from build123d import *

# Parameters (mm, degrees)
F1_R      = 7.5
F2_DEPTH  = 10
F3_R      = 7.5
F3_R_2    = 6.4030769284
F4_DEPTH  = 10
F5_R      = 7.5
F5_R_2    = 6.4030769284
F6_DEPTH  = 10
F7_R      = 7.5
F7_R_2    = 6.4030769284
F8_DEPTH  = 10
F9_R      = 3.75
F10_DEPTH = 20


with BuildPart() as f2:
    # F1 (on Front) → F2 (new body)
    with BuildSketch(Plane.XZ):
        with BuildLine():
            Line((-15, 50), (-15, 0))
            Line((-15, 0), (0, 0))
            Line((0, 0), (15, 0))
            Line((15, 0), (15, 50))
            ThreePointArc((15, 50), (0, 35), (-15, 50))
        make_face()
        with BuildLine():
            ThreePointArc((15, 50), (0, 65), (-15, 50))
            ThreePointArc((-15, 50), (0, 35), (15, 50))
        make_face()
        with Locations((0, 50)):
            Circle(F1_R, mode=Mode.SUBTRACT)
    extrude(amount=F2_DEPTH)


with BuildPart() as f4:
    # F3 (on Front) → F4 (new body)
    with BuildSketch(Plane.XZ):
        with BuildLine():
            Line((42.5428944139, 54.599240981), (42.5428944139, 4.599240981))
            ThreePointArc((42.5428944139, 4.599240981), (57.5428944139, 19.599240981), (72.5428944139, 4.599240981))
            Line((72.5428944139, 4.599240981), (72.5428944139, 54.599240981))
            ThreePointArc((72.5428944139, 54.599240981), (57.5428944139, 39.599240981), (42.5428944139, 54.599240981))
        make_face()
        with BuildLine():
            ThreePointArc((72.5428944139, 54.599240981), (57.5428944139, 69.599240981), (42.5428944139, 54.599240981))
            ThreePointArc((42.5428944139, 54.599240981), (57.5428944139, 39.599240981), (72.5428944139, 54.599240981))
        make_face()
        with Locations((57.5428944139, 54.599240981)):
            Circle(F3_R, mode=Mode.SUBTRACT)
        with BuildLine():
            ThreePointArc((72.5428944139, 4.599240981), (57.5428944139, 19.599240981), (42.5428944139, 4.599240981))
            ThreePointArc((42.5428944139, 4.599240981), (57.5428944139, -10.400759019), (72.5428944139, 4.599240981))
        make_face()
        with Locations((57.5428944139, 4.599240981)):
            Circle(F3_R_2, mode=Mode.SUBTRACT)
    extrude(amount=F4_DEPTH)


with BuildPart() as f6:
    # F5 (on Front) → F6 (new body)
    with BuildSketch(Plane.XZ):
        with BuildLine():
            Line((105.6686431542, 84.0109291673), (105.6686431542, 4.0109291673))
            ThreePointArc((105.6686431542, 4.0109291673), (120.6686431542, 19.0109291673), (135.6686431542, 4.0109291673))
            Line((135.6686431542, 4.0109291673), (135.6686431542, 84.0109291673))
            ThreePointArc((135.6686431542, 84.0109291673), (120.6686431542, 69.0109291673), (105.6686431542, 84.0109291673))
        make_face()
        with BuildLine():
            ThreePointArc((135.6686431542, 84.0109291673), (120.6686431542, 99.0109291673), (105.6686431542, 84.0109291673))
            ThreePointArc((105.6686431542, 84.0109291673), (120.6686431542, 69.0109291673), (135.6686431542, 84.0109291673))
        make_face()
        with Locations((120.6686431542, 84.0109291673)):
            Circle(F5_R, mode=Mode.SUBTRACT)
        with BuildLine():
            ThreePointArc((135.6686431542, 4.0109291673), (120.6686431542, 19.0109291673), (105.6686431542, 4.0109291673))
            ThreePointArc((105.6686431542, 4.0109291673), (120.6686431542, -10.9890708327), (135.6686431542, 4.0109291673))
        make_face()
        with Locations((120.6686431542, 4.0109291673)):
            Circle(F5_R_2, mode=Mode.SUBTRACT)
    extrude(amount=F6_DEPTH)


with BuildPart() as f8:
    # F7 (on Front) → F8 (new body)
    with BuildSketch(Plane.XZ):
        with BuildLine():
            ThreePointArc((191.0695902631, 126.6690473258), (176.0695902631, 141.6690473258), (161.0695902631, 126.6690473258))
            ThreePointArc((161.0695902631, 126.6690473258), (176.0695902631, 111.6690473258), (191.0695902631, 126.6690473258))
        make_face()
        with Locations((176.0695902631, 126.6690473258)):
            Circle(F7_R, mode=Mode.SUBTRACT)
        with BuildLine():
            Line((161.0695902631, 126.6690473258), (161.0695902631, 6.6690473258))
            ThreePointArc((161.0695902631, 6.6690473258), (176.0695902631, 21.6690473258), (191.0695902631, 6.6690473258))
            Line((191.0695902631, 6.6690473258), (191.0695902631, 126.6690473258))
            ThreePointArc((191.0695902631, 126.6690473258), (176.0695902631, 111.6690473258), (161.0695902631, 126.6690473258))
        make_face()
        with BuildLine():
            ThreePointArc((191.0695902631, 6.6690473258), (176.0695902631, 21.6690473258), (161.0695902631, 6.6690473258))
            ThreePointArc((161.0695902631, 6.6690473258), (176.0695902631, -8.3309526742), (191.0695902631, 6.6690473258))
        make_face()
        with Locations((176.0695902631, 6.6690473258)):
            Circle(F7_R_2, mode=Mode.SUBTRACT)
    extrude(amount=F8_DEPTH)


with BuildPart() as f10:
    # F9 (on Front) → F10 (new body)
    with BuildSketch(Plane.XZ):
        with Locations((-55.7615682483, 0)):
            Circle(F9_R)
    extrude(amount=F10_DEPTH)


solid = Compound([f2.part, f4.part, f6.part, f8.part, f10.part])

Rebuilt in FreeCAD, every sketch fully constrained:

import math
import FreeCAD as App
import Part
import Sketcher
from FreeCAD import Vector

doc = App.newDocument("Part")
body = doc.addObject("PartDesign::Body", "Body")

sketch1 = body.newObject("Sketcher::SketchObject", "Sketch")
sketch1.AttachmentSupport = (doc.getObject("XZ_Plane"), [""])
sketch1.MapMode = "FlatFace"
sketch1.addGeometry(Part.LineSegment(Vector(-15, 50, 0), Vector(-15, 0, 0)), False)
sketch1.addGeometry(Part.LineSegment(Vector(-15, 0, 0), Vector(15, 0, 0)), False)
sketch1.addGeometry(Part.LineSegment(Vector(15, 0, 0), Vector(15, 50, 0)), False)
sketch1.addGeometry(Part.ArcOfCircle(Part.Circle(Vector(0, 50, 0), Vector(0, 0, 1), 15), math.radians(0), math.radians(180)), False)
sketch1.addGeometry(Part.Circle(Vector(0, 50, 0), Vector(0, 0, 1), 8), False)
sketch1.addConstraint(Sketcher.Constraint("Coincident", 0, 2, 1, 1))
sketch1.addConstraint(Sketcher.Constraint("Coincident", 1, 2, 2, 1))
sketch1.addConstraint(Sketcher.Constraint("Tangent", 2, 2, 3, 1))
sketch1.addConstraint(Sketcher.Constraint("Tangent", 3, 2, 0, 1))
sketch1.addConstraint(Sketcher.Constraint("Vertical", 0))
sketch1.addConstraint(Sketcher.Constraint("Horizontal", 1))
sketch1.addConstraint(Sketcher.Constraint("Vertical", 2))
sketch1.addConstraint(Sketcher.Constraint("Coincident", 4, 3, 3, 3))
sketch1.addConstraint(Sketcher.Constraint("Symmetric", 0, 2, 1, 2, -1, 1))
sketch1.addConstraint(Sketcher.Constraint("Diameter", 4, 15.0))
sketch1.addConstraint(Sketcher.Constraint("Radius", 3, 15.0))
sketch1.addConstraint(Sketcher.Constraint("DistanceY", 0, 2, 0, 1, 50.0))
pad1 = body.newObject("PartDesign::Pad", "Pad")
pad1.Profile = sketch1
pad1.Length = 10
body2 = doc.addObject("PartDesign::Body", "Body001")

sketch2 = body2.newObject("Sketcher::SketchObject", "Sketch001")
sketch2.AttachmentSupport = (doc.getObject("XZ_Plane001"), [""])
sketch2.MapMode = "FlatFace"
sketch2.addGeometry(Part.LineSegment(Vector(43, 55, 0), Vector(43, 5, 0)), False)
sketch2.addGeometry(Part.ArcOfCircle(Part.Circle(Vector(58, 5, 0), Vector(0, 0, 1), 15), math.radians(180), math.radians(360)), False)
sketch2.addGeometry(Part.LineSegment(Vector(73, 5, 0), Vector(73, 55, 0)), False)
sketch2.addGeometry(Part.ArcOfCircle(Part.Circle(Vector(58, 55, 0), Vector(0, 0, 1), 15), math.radians(0), math.radians(180)), False)
sketch2.addGeometry(Part.Circle(Vector(58, 5, 0), Vector(0, 0, 1), 6), False)
sketch2.addGeometry(Part.Circle(Vector(58, 55, 0), Vector(0, 0, 1), 8), False)
sketch2.addConstraint(Sketcher.Constraint("Tangent", 0, 2, 1, 1))
sketch2.addConstraint(Sketcher.Constraint("Tangent", 1, 2, 2, 1))
sketch2.addConstraint(Sketcher.Constraint("Tangent", 2, 2, 3, 1))
sketch2.addConstraint(Sketcher.Constraint("Tangent", 3, 2, 0, 1))
sketch2.addConstraint(Sketcher.Constraint("Vertical", 0))
sketch2.addConstraint(Sketcher.Constraint("Vertical", 2))
sketch2.addConstraint(Sketcher.Constraint("Coincident", 4, 3, 1, 3))
sketch2.addConstraint(Sketcher.Constraint("Coincident", 5, 3, 3, 3))
sketch2.addConstraint(Sketcher.Constraint("Diameter", 5, 15.0))
sketch2.addConstraint(Sketcher.Constraint("Radius", 1, 15.0))
sketch2.addConstraint(Sketcher.Constraint("DistanceY", 0, 2, 0, 1, 50.0))
sketch2.addConstraint(Sketcher.Constraint("Diameter", 4, 12.806154))
sketch2.addConstraint(Sketcher.Constraint("DistanceY", -1, 1, 1, 3, 4.599241))
sketch2.addConstraint(Sketcher.Constraint("DistanceX", -1, 1, 1, 3, 57.542894))
pad2 = body2.newObject("PartDesign::Pad", "Pad001")
pad2.Profile = sketch2
pad2.Length = 10
body3 = doc.addObject("PartDesign::Body", "Body002")

sketch3 = body3.newObject("Sketcher::SketchObject", "Sketch002")
sketch3.AttachmentSupport = (doc.getObject("XZ_Plane002"), [""])
sketch3.MapMode = "FlatFace"
sketch3.addGeometry(Part.LineSegment(Vector(106, 84, 0), Vector(106, 4, 0)), False)
sketch3.addGeometry(Part.ArcOfCircle(Part.Circle(Vector(121, 4, 0), Vector(0, 0, 1), 15), math.radians(180), math.radians(360)), False)
sketch3.addGeometry(Part.LineSegment(Vector(136, 4, 0), Vector(136, 84, 0)), False)
sketch3.addGeometry(Part.ArcOfCircle(Part.Circle(Vector(121, 84, 0), Vector(0, 0, 1), 15), math.radians(0), math.radians(180)), False)
sketch3.addGeometry(Part.Circle(Vector(121, 4, 0), Vector(0, 0, 1), 6), False)
sketch3.addGeometry(Part.Circle(Vector(121, 84, 0), Vector(0, 0, 1), 8), False)
sketch3.addConstraint(Sketcher.Constraint("Tangent", 0, 2, 1, 1))
sketch3.addConstraint(Sketcher.Constraint("Tangent", 1, 2, 2, 1))
sketch3.addConstraint(Sketcher.Constraint("Tangent", 2, 2, 3, 1))
sketch3.addConstraint(Sketcher.Constraint("Tangent", 3, 2, 0, 1))
sketch3.addConstraint(Sketcher.Constraint("Vertical", 0))
sketch3.addConstraint(Sketcher.Constraint("Vertical", 2))
sketch3.addConstraint(Sketcher.Constraint("Coincident", 4, 3, 1, 3))
sketch3.addConstraint(Sketcher.Constraint("Coincident", 5, 3, 3, 3))
sketch3.addConstraint(Sketcher.Constraint("Diameter", 5, 15.0))
sketch3.addConstraint(Sketcher.Constraint("Radius", 1, 15.0))
sketch3.addConstraint(Sketcher.Constraint("DistanceY", 0, 2, 0, 1, 80.0))
sketch3.addConstraint(Sketcher.Constraint("Diameter", 4, 12.806154))
sketch3.addConstraint(Sketcher.Constraint("DistanceY", -1, 1, 1, 3, 4.010929))
sketch3.addConstraint(Sketcher.Constraint("DistanceX", -1, 1, 1, 3, 120.668643))
pad3 = body3.newObject("PartDesign::Pad", "Pad002")
pad3.Profile = sketch3
pad3.Length = 10
body4 = doc.addObject("PartDesign::Body", "Body003")

sketch4 = body4.newObject("Sketcher::SketchObject", "Sketch003")
sketch4.AttachmentSupport = (doc.getObject("XZ_Plane003"), [""])
sketch4.MapMode = "FlatFace"
sketch4.addGeometry(Part.ArcOfCircle(Part.Circle(Vector(176, 127, 0), Vector(0, 0, 1), 15), math.radians(0), math.radians(180)), False)
sketch4.addGeometry(Part.LineSegment(Vector(161, 127, 0), Vector(161, 7, 0)), False)
sketch4.addGeometry(Part.ArcOfCircle(Part.Circle(Vector(176, 7, 0), Vector(0, 0, 1), 15), math.radians(180), math.radians(360)), False)
sketch4.addGeometry(Part.LineSegment(Vector(191, 7, 0), Vector(191, 127, 0)), False)
sketch4.addGeometry(Part.Circle(Vector(176, 7, 0), Vector(0, 0, 1), 6), False)
sketch4.addGeometry(Part.Circle(Vector(176, 127, 0), Vector(0, 0, 1), 8), False)
sketch4.addConstraint(Sketcher.Constraint("Tangent", 0, 2, 1, 1))
sketch4.addConstraint(Sketcher.Constraint("Tangent", 1, 2, 2, 1))
sketch4.addConstraint(Sketcher.Constraint("Tangent", 2, 2, 3, 1))
sketch4.addConstraint(Sketcher.Constraint("Tangent", 3, 2, 0, 1))
sketch4.addConstraint(Sketcher.Constraint("Vertical", 1))
sketch4.addConstraint(Sketcher.Constraint("Vertical", 3))
sketch4.addConstraint(Sketcher.Constraint("Coincident", 4, 3, 2, 3))
sketch4.addConstraint(Sketcher.Constraint("Coincident", 5, 3, 0, 3))
sketch4.addConstraint(Sketcher.Constraint("Diameter", 5, 15.0))
sketch4.addConstraint(Sketcher.Constraint("Radius", 0, 15.0))
sketch4.addConstraint(Sketcher.Constraint("DistanceY", 1, 2, 1, 1, 120.0))
sketch4.addConstraint(Sketcher.Constraint("Diameter", 4, 12.806154))
sketch4.addConstraint(Sketcher.Constraint("DistanceX", -1, 1, 0, 3, 176.06959))
sketch4.addConstraint(Sketcher.Constraint("DistanceY", -1, 1, 0, 3, 126.669047))
pad4 = body4.newObject("PartDesign::Pad", "Pad003")
pad4.Profile = sketch4
pad4.Length = 10
body5 = doc.addObject("PartDesign::Body", "Body004")

sketch5 = body5.newObject("Sketcher::SketchObject", "Sketch004")
sketch5.AttachmentSupport = (doc.getObject("XZ_Plane004"), [""])
sketch5.MapMode = "FlatFace"
sketch5.addGeometry(Part.Circle(Vector(-55.8, 0, 0), Vector(0, 0, 1), 3.8), False)
sketch5.addConstraint(Sketcher.Constraint("PointOnObject", 0, 3, -1))
sketch5.addConstraint(Sketcher.Constraint("Diameter", 0, 7.5))
sketch5.addConstraint(Sketcher.Constraint("DistanceX", 0, 3, -1, 1, 55.761568))
pad5 = body5.newObject("PartDesign::Pad", "Pad004")
pad5.Profile = sketch5
pad5.Length = 20

doc.recompute()
